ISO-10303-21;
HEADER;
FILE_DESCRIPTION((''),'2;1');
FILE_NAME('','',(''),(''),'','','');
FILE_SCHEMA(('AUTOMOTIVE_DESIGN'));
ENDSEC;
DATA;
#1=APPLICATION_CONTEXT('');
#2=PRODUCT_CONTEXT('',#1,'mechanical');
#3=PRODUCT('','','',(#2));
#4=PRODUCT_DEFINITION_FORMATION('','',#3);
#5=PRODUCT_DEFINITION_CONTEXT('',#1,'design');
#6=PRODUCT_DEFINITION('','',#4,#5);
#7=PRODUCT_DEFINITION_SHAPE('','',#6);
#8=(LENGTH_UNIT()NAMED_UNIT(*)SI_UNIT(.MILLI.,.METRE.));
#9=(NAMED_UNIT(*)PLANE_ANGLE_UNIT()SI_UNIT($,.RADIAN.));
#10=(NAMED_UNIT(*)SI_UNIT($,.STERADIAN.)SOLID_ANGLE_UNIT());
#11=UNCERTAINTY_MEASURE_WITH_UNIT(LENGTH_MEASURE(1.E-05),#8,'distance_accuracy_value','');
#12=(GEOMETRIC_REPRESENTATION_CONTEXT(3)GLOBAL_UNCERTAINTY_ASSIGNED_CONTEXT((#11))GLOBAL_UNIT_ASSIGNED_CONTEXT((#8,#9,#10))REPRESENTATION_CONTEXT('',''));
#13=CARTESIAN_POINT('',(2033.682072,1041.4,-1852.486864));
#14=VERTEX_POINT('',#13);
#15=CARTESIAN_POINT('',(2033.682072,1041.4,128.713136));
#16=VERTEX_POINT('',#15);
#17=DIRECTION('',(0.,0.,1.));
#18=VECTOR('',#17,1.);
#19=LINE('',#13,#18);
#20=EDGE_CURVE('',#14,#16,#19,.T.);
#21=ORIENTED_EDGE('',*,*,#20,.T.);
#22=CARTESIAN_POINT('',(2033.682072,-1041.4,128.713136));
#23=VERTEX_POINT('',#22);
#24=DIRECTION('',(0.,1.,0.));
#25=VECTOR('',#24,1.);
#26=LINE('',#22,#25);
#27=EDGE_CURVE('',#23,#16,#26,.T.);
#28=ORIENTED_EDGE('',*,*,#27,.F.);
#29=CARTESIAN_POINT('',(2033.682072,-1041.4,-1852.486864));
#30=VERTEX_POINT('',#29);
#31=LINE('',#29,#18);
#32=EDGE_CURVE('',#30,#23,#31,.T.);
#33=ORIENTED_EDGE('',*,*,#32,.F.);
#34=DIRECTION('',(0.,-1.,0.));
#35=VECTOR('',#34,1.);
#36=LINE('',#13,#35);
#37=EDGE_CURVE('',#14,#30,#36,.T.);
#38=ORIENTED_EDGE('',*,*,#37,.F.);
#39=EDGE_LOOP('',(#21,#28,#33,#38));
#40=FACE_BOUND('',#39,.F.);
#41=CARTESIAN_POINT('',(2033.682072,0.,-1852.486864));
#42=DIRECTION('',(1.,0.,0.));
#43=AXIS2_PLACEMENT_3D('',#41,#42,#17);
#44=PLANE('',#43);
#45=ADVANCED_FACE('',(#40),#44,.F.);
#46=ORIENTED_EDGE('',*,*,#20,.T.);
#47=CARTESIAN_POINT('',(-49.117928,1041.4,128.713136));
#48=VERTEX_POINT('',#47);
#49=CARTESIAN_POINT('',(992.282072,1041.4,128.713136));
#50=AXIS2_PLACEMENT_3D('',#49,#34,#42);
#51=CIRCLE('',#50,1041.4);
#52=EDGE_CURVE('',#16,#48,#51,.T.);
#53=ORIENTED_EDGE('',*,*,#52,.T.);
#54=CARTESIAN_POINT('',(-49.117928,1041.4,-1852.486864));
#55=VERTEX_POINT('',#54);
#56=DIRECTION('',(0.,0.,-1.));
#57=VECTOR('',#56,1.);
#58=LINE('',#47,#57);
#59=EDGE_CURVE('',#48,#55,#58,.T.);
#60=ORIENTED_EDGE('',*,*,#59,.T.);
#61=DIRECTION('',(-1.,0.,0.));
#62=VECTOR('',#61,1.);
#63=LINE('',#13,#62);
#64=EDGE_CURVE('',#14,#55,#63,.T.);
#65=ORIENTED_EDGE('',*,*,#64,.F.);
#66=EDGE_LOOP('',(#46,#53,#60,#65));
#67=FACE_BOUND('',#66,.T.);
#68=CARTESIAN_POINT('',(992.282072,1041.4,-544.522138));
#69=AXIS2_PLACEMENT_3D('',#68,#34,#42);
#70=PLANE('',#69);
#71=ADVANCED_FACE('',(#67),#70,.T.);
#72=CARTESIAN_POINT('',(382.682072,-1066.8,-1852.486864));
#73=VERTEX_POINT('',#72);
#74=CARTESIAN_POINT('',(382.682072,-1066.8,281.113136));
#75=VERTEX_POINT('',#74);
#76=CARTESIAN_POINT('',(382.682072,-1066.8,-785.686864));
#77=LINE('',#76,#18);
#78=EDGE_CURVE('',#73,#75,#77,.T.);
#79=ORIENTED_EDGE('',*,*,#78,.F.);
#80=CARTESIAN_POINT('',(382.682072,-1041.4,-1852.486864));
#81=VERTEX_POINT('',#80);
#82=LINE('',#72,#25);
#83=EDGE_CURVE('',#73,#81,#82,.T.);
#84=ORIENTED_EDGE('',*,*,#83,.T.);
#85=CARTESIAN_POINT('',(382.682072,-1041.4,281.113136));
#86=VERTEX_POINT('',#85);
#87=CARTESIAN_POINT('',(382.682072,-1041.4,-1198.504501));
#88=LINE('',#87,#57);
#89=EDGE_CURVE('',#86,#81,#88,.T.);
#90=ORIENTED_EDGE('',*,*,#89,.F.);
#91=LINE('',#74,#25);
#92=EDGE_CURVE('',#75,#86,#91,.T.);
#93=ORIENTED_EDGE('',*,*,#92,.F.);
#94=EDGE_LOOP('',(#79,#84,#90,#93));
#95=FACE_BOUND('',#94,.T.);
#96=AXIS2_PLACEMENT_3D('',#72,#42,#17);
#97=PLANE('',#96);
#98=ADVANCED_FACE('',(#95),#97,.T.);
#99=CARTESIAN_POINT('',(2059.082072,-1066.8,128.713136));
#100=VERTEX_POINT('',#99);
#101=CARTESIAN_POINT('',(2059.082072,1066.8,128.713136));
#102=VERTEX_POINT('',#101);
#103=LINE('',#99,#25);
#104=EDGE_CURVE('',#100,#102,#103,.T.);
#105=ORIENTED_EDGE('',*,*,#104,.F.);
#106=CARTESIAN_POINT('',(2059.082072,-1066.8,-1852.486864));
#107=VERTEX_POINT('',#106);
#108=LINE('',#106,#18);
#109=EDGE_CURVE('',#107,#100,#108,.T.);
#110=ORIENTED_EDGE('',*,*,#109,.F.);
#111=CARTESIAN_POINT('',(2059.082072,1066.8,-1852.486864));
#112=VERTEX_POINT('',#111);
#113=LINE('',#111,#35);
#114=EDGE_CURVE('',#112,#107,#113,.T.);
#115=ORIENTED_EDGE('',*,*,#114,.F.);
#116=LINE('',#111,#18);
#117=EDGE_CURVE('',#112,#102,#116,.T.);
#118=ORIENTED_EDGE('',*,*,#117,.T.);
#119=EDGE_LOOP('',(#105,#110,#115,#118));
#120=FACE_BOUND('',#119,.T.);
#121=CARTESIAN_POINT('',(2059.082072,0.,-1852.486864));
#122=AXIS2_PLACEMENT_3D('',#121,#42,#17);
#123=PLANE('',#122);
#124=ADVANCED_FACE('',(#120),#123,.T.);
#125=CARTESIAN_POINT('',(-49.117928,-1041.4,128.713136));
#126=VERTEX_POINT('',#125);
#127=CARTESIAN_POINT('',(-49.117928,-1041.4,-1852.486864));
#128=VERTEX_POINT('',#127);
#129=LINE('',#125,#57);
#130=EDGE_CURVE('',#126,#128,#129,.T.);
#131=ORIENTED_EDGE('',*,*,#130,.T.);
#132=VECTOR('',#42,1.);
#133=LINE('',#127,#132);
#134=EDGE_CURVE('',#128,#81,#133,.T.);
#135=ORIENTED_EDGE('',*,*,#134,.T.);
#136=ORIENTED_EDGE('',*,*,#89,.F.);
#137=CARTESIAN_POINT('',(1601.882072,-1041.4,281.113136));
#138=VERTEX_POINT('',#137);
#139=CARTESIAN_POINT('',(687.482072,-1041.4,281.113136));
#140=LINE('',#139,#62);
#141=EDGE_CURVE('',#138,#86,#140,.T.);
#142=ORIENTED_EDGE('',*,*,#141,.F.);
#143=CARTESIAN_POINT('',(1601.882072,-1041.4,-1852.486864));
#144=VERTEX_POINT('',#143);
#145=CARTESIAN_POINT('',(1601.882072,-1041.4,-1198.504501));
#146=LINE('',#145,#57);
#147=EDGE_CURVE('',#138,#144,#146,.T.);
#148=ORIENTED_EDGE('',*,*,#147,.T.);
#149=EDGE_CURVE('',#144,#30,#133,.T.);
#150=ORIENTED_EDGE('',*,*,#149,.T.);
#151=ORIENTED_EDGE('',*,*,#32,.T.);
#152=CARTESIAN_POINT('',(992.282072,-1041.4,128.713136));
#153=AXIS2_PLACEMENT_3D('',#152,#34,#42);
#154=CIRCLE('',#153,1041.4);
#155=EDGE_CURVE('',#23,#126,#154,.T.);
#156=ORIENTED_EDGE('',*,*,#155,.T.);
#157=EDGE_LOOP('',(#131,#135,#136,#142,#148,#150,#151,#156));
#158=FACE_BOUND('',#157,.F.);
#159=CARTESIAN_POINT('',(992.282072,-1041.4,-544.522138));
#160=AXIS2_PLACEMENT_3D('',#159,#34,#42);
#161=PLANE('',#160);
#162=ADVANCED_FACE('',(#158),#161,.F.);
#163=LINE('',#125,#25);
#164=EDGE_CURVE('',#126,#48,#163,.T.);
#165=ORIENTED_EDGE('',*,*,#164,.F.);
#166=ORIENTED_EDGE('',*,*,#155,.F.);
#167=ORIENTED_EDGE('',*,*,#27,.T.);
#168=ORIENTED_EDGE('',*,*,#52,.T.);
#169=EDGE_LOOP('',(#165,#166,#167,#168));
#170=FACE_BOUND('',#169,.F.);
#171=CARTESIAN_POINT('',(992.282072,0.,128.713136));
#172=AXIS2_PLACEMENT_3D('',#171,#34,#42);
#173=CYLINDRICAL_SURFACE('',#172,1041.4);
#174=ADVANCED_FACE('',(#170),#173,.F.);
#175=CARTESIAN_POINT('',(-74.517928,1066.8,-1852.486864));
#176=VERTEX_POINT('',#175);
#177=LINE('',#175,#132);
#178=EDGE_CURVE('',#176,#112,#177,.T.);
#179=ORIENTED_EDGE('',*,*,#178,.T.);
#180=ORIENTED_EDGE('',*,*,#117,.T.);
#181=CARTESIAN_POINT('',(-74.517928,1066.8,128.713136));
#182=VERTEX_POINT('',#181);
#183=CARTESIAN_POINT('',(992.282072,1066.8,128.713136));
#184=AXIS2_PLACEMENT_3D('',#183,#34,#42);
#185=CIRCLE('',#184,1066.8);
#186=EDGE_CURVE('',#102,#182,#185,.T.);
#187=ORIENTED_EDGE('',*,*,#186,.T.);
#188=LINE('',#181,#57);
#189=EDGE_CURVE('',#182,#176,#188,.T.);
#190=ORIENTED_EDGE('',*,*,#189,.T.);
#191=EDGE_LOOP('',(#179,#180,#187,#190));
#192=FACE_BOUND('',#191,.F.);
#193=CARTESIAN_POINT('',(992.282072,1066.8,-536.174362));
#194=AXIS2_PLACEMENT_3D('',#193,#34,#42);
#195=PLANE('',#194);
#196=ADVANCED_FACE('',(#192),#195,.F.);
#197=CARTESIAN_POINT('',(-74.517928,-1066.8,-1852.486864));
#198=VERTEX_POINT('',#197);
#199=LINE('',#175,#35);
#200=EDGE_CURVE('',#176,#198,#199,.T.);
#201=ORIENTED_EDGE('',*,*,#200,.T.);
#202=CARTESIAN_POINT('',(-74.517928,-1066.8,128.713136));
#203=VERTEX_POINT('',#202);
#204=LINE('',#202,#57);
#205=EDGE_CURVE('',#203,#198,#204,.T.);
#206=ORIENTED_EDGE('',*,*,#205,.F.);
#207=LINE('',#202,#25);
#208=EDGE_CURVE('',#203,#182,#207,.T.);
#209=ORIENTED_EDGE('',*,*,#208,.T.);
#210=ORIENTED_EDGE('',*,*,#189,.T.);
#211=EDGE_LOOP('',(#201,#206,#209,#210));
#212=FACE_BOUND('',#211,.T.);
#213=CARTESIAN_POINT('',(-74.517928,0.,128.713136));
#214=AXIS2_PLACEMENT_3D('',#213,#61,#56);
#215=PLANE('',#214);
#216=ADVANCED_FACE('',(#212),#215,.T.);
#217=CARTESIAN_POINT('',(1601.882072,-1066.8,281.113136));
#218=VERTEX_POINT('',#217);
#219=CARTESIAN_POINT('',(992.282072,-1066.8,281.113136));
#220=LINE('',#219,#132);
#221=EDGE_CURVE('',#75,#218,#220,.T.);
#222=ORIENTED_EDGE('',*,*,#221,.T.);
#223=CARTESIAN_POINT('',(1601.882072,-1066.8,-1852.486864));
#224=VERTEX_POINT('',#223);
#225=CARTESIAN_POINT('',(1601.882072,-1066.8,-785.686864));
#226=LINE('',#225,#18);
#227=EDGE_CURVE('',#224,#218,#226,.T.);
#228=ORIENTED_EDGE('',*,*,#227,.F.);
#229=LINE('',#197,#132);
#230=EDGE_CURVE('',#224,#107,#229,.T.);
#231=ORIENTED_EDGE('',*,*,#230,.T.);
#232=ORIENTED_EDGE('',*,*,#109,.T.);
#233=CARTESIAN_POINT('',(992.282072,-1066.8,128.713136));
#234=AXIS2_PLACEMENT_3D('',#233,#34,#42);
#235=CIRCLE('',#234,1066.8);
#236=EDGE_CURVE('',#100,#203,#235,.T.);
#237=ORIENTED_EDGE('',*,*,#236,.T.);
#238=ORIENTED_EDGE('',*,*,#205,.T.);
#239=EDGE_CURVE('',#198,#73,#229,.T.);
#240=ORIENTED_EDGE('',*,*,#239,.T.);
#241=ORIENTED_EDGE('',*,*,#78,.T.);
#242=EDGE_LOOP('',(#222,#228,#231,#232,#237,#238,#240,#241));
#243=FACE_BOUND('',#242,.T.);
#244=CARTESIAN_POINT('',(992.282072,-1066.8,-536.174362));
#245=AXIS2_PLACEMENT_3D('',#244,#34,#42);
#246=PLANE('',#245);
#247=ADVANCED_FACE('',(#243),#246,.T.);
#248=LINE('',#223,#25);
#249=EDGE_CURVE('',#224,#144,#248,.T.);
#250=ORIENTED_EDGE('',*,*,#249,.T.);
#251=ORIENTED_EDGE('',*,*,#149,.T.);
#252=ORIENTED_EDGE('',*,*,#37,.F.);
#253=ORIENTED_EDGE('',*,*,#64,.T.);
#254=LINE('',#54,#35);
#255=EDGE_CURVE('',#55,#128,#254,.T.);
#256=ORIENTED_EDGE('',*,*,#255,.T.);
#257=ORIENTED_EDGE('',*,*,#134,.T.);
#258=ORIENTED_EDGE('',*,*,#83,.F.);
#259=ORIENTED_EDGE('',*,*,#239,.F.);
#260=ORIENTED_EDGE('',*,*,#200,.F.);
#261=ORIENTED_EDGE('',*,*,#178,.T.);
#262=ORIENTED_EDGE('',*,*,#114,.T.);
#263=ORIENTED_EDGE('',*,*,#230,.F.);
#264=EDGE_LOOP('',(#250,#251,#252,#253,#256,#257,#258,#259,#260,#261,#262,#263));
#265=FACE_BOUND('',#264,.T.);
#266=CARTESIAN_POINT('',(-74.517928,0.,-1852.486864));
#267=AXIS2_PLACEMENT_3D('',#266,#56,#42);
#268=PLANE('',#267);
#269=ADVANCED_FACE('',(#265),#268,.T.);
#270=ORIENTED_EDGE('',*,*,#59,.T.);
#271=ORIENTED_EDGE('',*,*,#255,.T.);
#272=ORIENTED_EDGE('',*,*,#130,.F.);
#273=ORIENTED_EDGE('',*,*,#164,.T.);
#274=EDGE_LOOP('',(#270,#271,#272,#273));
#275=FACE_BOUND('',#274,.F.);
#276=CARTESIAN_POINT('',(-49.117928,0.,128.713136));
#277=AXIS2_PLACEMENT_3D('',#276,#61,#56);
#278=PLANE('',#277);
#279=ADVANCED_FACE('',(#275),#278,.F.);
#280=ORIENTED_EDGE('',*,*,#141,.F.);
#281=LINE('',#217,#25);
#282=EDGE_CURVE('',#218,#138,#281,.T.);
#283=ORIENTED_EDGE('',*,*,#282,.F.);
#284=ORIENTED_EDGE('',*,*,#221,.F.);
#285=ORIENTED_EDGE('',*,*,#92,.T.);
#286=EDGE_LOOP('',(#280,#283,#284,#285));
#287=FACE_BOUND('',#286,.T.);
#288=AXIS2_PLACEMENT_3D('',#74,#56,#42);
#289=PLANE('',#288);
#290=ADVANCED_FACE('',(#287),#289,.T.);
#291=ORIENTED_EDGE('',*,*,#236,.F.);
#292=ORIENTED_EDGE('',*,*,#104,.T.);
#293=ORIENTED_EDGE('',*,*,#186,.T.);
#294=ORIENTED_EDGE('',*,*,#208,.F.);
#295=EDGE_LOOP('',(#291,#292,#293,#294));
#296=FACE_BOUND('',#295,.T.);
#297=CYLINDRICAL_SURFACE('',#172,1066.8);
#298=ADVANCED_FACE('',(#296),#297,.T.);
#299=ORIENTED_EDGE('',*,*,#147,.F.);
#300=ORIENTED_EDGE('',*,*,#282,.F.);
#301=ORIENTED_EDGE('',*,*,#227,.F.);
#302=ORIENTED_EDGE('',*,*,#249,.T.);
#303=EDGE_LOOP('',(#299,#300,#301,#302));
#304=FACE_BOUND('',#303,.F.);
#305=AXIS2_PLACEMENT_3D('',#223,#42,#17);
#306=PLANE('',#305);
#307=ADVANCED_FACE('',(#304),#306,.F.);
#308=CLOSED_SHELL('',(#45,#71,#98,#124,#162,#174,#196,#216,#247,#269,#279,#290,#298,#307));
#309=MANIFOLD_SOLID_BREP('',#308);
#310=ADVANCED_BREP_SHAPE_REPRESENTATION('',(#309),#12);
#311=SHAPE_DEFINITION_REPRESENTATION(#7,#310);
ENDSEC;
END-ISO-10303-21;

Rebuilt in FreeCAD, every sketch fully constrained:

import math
import FreeCAD as App
import Part
import Sketcher
from FreeCAD import Vector
Q = App.Units.Quantity


def add_polygon(sketch, points):
    """Adds a closed chain of lines whose ends are joined by coincident constraints."""
    first, n = sketch.GeometryCount, len(points)
    for a, b in zip(points, points[1:] + points[:1]):
        sketch.addGeometry(Part.LineSegment(App.Vector(*a, 0), App.Vector(*b, 0)), False)
    for i in range(n):
        sketch.addConstraint(Sketcher.Constraint("Coincident", first + i, 2, first + (i + 1) % n, 1))

doc = App.newDocument("Part")
body = doc.addObject("PartDesign::Body", "Body")

# Sketch on XZ plane
sketch1 = doc.addObject("Sketcher::SketchObject", "Sketch")
body.addObject(sketch1)
sketch1.AttachmentSupport = (doc.XZ_Plane, [""])
sketch1.MapMode = "FlatFace"
sketch1.addGeometry(Part.LineSegment(Vector(-75, 129, 0), Vector(-75, -1852, 0)), False)
sketch1.addGeometry(Part.LineSegment(Vector(-75, -1852, 0), Vector(2059, -1852, 0)), False)
sketch1.addGeometry(Part.LineSegment(Vector(2059, -1852, 0), Vector(2059, 129, 0)), False)
sketch1.addGeometry(Part.ArcOfCircle(Part.Circle(Vector(992, 129, 0), Vector(0, 0, 1), 1067), math.radians(0), math.radians(180)), False)
sketch1.addConstraint(Sketcher.Constraint("Coincident", 0, 2, 1, 1))
sketch1.addConstraint(Sketcher.Constraint("Coincident", 1, 2, 2, 1))
sketch1.addConstraint(Sketcher.Constraint("Coincident", 2, 2, 3, 1))
sketch1.addConstraint(Sketcher.Constraint("Coincident", 3, 2, 0, 1))
sketch1.addConstraint(Sketcher.Constraint("Vertical", 0))
sketch1.addConstraint(Sketcher.Constraint("Horizontal", 1))
sketch1.addConstraint(Sketcher.Constraint("Vertical", 2))
sketch1.addConstraint(Sketcher.Constraint("Horizontal", 3, 3, 2, 2))
sketch1.addConstraint(Sketcher.Constraint("Equal", 0, 2))
sketch1.addConstraint(Sketcher.Constraint("Radius", 3, Q("42 in")))
sketch1.addConstraint(Sketcher.Constraint("DistanceY", 0, 2, 0, 1, Q("78 in")))
sketch1.addConstraint(Sketcher.Constraint("DistanceX", -1, 1, 3, 3, 992.282072))
sketch1.addConstraint(Sketcher.Constraint("DistanceY", -1, 1, 3, 3, 128.713136))
pad1 = doc.addObject("PartDesign::Pad", "Pad")
body.addObject(pad1)
pad1.Profile = sketch1
pad1.Length = Q("84 in")
pad1.Midplane = True

# Sketch on XZ plane
sketch2 = doc.addObject("Sketcher::SketchObject", "Sketch001")
body.addObject(sketch2)
sketch2.AttachmentSupport = (doc.XZ_Plane, [""])
sketch2.MapMode = "FlatFace"
sketch2.AttachmentOffset = App.Placement(Vector(0, 0, 42 * 25.4), App.Rotation())
add_polygon(sketch2, [(383, 281), (383, -1852), (1602, -1852), (1602, 281)])  # lines 0-3
sketch2.addConstraint(Sketcher.Constraint("Vertical", 0))
sketch2.addConstraint(Sketcher.Constraint("Horizontal", 1))
sketch2.addConstraint(Sketcher.Constraint("Vertical", 2))
sketch2.addConstraint(Sketcher.Constraint("Horizontal", 3))
sketch2.addConstraint(Sketcher.Constraint("DistanceX", 1, 1, 1, 2, Q("48 in")))
sketch2.addConstraint(Sketcher.Constraint("DistanceY", 0, 2, 0, 1, Q("84 in")))
sketch2.addConstraint(Sketcher.Constraint("DistanceX", -1, 1, 0, 2, 382.682072))
sketch2.addConstraint(Sketcher.Constraint("DistanceY", 0, 2, -1, 1, 1852.486864))
pocket1 = doc.addObject("PartDesign::Pocket", "Pocket")
body.addObject(pocket1)
pocket1.Profile = sketch2
pocket1.Length = Q("83 in")

# Sketch on XZ plane
sketch3 = doc.addObject("Sketcher::SketchObject", "Sketch002")
body.addObject(sketch3)
sketch3.AttachmentSupport = (doc.XZ_Plane, [""])
sketch3.MapMode = "FlatFace"
sketch3.addGeometry(Part.LineSegment(Vector(-49, 129, 0), Vector(-49, -1852, 0)), False)
sketch3.addGeometry(Part.LineSegment(Vector(-49, -1852, 0), Vector(2034, -1852, 0)), False)
sketch3.addGeometry(Part.LineSegment(Vector(2034, -1852, 0), Vector(2034, 129, 0)), False)
sketch3.addGeometry(Part.ArcOfCircle(Part.Circle(Vector(992, 129, 0), Vector(0, 0, 1), 1041), math.radians(0), math.radians(180)), False)
sketch3.addConstraint(Sketcher.Constraint("Coincident", 0, 2, 1, 1))
sketch3.addConstraint(Sketcher.Constraint("Coincident", 1, 2, 2, 1))
sketch3.addConstraint(Sketcher.Constraint("Coincident", 2, 2, 3, 1))
sketch3.addConstraint(Sketcher.Constraint("Coincident", 3, 2, 0, 1))
sketch3.addConstraint(Sketcher.Constraint("Vertical", 0))
sketch3.addConstraint(Sketcher.Constraint("Horizontal", 1))
sketch3.addConstraint(Sketcher.Constraint("Vertical", 2))
sketch3.addConstraint(Sketcher.Constraint("Horizontal", 3, 3, 2, 2))
sketch3.addConstraint(Sketcher.Constraint("Equal", 0, 2))
sketch3.addConstraint(Sketcher.Constraint("Radius", 3, Q("41 in")))
sketch3.addConstraint(Sketcher.Constraint("DistanceY", 0, 2, 0, 1, Q("78 in")))
sketch3.addConstraint(Sketcher.Constraint("DistanceX", -1, 1, 3, 3, 992.282072))
sketch3.addConstraint(Sketcher.Constraint("DistanceY", -1, 1, 3, 3, 128.713136))
pocket2 = doc.addObject("PartDesign::Pocket", "Pocket001")
body.addObject(pocket2)
pocket2.Profile = sketch3
pocket2.Length = Q("82 in")
pocket2.Midplane = True

doc.recompute()
